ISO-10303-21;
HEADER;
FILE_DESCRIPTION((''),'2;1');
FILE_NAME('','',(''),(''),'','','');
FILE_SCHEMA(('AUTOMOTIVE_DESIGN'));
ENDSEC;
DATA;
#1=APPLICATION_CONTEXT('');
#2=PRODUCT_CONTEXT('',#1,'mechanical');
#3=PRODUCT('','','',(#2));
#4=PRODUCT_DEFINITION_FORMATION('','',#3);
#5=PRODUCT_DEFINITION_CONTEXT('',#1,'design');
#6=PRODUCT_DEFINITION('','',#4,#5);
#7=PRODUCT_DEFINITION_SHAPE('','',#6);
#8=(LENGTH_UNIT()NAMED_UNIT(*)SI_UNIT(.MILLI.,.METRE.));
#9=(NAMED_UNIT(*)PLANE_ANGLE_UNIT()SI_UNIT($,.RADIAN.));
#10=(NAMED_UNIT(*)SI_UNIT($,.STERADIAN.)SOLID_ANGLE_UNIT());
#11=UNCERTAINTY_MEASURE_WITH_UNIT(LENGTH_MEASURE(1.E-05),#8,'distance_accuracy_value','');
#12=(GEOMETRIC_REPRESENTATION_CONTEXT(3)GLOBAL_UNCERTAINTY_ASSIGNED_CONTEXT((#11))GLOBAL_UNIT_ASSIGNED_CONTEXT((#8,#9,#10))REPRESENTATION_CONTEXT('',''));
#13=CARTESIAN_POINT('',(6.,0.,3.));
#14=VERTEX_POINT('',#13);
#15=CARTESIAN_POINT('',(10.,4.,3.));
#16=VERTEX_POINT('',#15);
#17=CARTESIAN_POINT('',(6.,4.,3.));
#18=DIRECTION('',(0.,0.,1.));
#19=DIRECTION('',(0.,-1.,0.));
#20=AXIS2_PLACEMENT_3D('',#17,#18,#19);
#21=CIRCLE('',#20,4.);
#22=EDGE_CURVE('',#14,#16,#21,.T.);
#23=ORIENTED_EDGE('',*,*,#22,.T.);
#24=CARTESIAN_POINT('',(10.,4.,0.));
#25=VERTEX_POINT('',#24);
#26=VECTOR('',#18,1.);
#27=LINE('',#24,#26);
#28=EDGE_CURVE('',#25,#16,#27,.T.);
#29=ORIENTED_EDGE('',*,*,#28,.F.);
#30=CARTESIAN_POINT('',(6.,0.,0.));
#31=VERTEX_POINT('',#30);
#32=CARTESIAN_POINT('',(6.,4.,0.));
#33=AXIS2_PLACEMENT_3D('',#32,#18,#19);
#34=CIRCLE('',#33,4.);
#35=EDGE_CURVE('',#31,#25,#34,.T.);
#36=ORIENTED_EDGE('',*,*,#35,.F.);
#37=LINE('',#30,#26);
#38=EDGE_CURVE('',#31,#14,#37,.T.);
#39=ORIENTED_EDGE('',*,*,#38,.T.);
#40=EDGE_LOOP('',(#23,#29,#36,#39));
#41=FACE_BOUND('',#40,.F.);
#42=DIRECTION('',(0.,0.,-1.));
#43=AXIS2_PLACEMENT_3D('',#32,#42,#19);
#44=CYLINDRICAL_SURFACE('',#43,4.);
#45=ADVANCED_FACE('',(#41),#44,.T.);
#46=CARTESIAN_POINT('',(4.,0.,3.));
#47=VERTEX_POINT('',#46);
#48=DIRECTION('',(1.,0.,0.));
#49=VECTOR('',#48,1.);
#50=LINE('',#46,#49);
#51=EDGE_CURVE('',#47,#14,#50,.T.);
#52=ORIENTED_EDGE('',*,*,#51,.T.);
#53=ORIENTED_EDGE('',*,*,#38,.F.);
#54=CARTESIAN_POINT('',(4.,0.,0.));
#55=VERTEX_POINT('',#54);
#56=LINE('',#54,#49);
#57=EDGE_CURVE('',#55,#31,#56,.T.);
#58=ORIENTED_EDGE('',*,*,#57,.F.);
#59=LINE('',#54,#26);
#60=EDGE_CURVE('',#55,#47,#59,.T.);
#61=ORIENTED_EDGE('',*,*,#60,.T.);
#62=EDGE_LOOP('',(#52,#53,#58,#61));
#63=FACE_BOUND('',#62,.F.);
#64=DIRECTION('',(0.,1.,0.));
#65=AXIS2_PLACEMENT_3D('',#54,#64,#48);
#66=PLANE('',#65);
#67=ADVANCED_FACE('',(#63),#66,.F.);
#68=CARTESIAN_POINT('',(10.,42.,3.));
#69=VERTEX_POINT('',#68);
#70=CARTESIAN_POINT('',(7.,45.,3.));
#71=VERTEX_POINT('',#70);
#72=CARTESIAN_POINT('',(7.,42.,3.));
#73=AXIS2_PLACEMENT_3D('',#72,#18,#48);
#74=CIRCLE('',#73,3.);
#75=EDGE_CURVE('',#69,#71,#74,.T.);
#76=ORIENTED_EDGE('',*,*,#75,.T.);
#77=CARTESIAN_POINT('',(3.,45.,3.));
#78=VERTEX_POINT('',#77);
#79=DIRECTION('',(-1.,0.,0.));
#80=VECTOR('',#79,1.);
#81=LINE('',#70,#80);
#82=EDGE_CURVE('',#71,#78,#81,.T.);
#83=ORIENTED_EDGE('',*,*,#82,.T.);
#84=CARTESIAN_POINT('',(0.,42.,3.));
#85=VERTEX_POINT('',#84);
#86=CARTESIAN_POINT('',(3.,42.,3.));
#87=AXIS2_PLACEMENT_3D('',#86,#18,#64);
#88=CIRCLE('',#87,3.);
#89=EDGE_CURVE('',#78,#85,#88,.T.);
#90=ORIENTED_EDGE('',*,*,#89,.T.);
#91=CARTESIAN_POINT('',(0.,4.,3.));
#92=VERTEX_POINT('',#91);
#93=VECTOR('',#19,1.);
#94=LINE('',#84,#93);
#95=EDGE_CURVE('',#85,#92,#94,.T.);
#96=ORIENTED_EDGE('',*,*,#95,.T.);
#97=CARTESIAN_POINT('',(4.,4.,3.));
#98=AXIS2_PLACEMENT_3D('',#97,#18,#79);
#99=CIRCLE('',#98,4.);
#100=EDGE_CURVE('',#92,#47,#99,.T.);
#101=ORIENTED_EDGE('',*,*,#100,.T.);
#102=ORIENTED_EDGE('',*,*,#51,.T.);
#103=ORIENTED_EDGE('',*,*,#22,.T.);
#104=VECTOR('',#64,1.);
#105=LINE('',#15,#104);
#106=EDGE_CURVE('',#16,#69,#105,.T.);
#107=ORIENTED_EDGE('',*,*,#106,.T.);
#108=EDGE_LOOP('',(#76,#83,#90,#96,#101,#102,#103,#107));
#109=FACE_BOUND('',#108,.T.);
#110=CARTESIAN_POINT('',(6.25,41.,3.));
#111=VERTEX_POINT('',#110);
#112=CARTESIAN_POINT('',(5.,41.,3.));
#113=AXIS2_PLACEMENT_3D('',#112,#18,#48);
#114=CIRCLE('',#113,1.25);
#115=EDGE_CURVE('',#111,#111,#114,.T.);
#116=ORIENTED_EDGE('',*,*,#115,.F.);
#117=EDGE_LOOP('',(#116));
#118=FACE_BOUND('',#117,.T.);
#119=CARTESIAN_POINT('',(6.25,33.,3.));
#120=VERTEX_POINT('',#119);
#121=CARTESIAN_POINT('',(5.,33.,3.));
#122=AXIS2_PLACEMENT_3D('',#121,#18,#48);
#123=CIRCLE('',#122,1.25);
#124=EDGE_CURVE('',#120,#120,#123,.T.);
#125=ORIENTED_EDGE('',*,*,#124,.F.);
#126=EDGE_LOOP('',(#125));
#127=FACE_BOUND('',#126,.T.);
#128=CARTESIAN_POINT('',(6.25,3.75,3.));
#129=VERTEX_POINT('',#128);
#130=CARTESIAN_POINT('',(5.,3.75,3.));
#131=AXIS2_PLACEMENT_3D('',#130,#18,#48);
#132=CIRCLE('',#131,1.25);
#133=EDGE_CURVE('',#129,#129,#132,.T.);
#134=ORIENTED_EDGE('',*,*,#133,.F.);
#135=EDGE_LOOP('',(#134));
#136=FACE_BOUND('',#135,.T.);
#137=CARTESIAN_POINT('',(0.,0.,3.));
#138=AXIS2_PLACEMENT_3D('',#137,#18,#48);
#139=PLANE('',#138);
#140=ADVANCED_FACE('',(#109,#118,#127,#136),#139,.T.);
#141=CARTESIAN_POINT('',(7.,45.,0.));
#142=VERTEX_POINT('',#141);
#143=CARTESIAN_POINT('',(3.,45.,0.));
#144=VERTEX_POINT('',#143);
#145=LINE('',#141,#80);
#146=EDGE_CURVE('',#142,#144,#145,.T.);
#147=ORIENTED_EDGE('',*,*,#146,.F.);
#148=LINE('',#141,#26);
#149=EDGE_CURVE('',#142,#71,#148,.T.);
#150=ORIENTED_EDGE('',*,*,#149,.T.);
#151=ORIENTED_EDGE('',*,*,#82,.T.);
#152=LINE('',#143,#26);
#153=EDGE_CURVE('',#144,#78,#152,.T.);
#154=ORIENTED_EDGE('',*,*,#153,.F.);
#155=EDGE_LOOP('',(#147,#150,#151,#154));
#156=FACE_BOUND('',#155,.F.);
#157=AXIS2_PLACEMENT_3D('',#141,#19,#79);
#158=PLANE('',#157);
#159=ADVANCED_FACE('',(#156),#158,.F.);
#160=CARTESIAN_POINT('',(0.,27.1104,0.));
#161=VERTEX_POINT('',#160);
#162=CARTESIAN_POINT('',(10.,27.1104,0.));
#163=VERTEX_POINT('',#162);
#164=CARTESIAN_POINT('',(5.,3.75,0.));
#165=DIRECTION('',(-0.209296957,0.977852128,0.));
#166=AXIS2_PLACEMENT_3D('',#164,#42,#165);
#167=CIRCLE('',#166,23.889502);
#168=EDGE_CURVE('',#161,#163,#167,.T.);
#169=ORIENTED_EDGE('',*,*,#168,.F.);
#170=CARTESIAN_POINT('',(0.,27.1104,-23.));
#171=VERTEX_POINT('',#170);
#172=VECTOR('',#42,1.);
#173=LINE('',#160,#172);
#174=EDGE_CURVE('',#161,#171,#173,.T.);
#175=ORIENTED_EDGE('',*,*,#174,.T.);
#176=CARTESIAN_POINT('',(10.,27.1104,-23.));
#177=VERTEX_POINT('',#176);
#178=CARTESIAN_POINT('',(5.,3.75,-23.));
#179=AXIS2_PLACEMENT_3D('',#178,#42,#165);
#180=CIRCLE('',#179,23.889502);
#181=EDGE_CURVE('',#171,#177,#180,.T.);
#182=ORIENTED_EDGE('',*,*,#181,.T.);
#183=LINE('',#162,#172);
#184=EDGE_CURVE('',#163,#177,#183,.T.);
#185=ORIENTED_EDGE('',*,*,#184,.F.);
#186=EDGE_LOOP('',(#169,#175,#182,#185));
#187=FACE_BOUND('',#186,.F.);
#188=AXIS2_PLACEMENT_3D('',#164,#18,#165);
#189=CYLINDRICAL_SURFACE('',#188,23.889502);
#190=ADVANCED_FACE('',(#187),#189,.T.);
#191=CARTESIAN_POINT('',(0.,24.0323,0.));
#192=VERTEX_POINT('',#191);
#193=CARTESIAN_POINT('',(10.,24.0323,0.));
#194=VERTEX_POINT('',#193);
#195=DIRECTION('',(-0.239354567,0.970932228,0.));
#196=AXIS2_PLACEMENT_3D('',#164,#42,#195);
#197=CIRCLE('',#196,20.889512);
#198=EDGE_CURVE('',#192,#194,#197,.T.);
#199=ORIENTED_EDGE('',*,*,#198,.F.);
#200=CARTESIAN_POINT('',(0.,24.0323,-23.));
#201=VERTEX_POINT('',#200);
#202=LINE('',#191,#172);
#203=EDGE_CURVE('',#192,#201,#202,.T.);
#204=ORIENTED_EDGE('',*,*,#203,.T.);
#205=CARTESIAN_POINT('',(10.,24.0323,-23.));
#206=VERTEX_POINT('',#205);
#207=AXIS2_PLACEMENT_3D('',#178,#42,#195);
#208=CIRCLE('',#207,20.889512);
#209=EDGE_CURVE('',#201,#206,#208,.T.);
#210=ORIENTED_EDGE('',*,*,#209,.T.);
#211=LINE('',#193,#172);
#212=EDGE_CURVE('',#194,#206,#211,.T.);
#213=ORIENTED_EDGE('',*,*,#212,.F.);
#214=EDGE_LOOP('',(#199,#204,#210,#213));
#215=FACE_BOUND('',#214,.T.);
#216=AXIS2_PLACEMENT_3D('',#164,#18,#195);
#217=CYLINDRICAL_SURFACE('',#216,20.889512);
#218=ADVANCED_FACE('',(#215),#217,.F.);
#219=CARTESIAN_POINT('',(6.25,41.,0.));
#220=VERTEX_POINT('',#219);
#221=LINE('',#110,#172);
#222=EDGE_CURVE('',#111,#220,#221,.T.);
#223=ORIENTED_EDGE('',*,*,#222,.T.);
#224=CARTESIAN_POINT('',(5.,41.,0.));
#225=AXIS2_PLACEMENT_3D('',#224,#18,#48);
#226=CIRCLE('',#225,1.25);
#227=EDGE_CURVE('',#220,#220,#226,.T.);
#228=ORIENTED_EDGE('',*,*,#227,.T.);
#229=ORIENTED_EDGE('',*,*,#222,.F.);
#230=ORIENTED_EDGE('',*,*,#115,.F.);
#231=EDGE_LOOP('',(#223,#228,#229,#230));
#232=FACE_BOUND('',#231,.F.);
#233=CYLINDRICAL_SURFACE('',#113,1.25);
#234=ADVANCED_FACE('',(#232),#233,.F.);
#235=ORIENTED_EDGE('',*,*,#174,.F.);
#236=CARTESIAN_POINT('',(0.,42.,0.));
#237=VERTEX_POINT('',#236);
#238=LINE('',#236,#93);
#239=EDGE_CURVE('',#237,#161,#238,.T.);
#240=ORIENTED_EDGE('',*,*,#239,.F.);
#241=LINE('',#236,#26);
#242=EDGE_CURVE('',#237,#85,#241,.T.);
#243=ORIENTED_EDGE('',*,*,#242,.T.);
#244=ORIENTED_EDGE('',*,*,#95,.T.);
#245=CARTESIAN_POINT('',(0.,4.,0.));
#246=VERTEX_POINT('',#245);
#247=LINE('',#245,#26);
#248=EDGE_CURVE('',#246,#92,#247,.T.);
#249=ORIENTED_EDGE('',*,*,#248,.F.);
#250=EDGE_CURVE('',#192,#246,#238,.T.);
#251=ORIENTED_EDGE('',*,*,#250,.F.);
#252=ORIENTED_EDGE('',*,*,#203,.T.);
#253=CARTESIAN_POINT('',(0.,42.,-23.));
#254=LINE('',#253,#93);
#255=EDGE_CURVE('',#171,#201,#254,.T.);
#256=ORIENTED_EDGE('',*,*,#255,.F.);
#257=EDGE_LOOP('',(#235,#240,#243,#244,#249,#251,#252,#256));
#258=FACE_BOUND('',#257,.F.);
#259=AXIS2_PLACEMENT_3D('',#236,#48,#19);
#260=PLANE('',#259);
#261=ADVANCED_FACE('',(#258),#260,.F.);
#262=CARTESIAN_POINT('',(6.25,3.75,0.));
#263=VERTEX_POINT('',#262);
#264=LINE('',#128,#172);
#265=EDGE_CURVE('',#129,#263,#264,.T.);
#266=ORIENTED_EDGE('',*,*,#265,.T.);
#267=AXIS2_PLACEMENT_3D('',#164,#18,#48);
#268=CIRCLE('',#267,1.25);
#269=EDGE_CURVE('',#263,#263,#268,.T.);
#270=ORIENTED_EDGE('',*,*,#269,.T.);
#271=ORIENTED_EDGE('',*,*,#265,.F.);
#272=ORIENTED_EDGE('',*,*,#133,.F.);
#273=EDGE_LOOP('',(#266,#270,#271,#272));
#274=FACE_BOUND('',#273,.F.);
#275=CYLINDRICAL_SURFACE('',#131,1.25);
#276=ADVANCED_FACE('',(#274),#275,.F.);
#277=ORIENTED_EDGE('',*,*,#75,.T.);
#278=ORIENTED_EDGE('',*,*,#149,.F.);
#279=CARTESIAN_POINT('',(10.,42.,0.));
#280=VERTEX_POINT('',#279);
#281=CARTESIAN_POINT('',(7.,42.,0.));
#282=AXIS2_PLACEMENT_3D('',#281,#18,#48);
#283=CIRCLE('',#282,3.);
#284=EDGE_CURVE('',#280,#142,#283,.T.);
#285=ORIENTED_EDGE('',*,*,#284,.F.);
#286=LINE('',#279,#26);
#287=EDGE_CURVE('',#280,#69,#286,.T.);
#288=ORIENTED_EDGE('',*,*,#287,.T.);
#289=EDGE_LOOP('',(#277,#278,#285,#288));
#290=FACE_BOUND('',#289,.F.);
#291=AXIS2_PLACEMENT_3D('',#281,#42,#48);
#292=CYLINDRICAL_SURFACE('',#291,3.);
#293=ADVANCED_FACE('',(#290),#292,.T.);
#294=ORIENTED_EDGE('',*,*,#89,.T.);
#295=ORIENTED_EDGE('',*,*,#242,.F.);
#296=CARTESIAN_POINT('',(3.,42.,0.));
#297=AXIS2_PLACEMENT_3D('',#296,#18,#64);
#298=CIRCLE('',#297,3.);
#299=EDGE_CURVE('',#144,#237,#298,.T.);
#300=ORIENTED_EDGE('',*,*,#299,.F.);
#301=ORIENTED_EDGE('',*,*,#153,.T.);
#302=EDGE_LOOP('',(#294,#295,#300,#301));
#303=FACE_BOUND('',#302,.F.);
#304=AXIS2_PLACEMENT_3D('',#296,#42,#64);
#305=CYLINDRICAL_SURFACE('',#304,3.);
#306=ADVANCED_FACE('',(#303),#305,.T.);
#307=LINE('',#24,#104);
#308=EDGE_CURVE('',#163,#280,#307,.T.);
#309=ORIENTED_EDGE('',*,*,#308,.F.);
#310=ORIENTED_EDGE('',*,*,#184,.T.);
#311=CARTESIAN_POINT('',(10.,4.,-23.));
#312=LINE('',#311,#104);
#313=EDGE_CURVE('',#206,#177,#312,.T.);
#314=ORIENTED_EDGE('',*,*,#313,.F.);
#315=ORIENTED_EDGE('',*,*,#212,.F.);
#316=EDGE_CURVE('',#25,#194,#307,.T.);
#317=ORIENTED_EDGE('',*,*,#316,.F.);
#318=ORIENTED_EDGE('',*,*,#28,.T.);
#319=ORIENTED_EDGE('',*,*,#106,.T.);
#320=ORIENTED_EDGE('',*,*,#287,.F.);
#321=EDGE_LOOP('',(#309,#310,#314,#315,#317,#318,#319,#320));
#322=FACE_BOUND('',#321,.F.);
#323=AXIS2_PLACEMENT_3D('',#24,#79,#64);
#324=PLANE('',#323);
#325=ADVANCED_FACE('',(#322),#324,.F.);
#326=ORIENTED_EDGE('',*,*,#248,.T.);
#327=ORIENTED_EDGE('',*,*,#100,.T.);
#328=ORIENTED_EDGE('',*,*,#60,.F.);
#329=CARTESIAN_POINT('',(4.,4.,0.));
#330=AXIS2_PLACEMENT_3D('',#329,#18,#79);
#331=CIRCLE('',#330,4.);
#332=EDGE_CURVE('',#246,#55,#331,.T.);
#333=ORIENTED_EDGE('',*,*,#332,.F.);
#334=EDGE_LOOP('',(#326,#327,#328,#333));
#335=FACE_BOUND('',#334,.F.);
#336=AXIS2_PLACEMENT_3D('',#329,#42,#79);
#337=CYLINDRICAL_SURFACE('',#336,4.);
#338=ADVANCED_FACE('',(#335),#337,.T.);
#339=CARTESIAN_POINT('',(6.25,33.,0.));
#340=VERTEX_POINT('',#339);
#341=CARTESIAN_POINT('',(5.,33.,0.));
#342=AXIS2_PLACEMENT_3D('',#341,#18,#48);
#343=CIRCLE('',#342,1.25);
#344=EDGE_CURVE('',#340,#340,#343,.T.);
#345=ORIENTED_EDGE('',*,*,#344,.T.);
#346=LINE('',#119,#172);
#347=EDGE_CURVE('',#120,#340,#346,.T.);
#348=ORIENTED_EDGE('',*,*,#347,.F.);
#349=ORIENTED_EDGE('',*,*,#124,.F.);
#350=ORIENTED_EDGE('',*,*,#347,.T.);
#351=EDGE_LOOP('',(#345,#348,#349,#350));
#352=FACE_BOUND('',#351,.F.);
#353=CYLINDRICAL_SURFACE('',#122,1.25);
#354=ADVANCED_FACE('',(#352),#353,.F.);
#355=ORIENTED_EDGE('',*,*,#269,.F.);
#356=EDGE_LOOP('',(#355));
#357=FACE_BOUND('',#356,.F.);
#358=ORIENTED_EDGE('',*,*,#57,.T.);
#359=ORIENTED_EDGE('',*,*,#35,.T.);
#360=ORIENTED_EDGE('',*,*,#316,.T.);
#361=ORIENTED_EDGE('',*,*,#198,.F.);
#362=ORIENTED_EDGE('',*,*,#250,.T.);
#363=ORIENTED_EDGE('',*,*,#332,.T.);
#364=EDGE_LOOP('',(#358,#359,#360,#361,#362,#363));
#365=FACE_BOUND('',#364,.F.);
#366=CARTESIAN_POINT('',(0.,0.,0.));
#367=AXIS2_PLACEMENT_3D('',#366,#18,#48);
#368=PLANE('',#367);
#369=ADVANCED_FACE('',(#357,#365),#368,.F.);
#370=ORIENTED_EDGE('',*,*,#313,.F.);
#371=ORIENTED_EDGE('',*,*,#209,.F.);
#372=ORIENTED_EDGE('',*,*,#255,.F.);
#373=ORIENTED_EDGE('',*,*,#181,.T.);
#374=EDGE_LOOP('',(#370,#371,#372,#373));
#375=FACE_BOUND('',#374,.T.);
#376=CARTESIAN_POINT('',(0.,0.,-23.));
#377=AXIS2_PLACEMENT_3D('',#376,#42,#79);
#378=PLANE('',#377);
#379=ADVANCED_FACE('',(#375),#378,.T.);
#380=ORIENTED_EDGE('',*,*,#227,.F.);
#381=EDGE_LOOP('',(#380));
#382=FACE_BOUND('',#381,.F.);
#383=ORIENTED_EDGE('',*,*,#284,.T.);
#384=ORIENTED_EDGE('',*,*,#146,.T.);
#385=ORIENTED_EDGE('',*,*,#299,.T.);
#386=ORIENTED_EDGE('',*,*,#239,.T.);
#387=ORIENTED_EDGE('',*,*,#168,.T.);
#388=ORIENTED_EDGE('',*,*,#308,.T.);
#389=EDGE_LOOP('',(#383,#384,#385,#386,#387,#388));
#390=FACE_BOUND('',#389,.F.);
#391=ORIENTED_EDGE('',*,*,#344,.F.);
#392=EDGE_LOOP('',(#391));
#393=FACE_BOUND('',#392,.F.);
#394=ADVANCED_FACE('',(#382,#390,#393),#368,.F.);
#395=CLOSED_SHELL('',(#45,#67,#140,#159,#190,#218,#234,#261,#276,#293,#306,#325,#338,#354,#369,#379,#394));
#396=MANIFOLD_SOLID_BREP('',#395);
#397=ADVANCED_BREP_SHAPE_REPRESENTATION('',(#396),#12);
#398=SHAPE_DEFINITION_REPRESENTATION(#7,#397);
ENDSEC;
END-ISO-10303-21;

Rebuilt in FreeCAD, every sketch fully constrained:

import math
import FreeCAD as App
import Part
import Sketcher
from FreeCAD import Vector
Q = App.Units.Quantity

doc = App.newDocument("Part")
body = doc.addObject("PartDesign::Body", "Body")

sketch1 = body.newObject("Sketcher::SketchObject", "Sketch")
sketch1.AttachmentSupport = (doc.getObject("XY_Plane"), [""])
sketch1.MapMode = "FlatFace"
sketch1.addGeometry(Part.ArcOfCircle(Part.Circle(Vector(4, 4, 0), Vector(0, 0, 1), 4), math.radians(180), math.radians(270)), False)
sketch1.addGeometry(Part.LineSegment(Vector(4, 0, 0), Vector(6, 0, 0)), False)
sketch1.addGeometry(Part.ArcOfCircle(Part.Circle(Vector(6, 4, 0), Vector(0, 0, 1), 4), math.radians(-90), math.radians(0)), False)
sketch1.addGeometry(Part.LineSegment(Vector(10, 4, 0), Vector(10, 42, 0)), False)
sketch1.addGeometry(Part.ArcOfCircle(Part.Circle(Vector(7, 42, 0), Vector(0, 0, 1), 3), math.radians(0), math.radians(90)), False)
sketch1.addGeometry(Part.LineSegment(Vector(7, 45, 0), Vector(3, 45, 0)), False)
sketch1.addGeometry(Part.ArcOfCircle(Part.Circle(Vector(3, 42, 0), Vector(0, 0, 1), 3), math.radians(90), math.radians(180)), False)
sketch1.addGeometry(Part.LineSegment(Vector(0, 42, 0), Vector(0, 4, 0)), False)
sketch1.addConstraint(Sketcher.Constraint("Tangent", 0, 2, 1, 1))
sketch1.addConstraint(Sketcher.Constraint("Tangent", 1, 2, 2, 1))
sketch1.addConstraint(Sketcher.Constraint("Tangent", 2, 2, 3, 1))
sketch1.addConstraint(Sketcher.Constraint("Tangent", 3, 2, 4, 1))
sketch1.addConstraint(Sketcher.Constraint("Tangent", 4, 2, 5, 1))
sketch1.addConstraint(Sketcher.Constraint("Tangent", 5, 2, 6, 1))
sketch1.addConstraint(Sketcher.Constraint("Tangent", 6, 2, 7, 1))
sketch1.addConstraint(Sketcher.Constraint("Tangent", 7, 2, 0, 1))
sketch1.addConstraint(Sketcher.Constraint("Horizontal", 1))
sketch1.addConstraint(Sketcher.Constraint("Vertical", 3))
sketch1.addConstraint(Sketcher.Constraint("Horizontal", 5))
sketch1.addConstraint(Sketcher.Constraint("Vertical", 7))
sketch1.addConstraint(Sketcher.Constraint("Equal", 0, 2))
sketch1.addConstraint(Sketcher.Constraint("Equal", 4, 6))
sketch1.addConstraint(Sketcher.Constraint("PointOnObject", 0, 2, -1))
sketch1.addConstraint(Sketcher.Constraint("PointOnObject", 6, 2, -2))
sketch1.addConstraint(Sketcher.Constraint("Radius", 0, Q("4 mm")))
sketch1.addConstraint(Sketcher.Constraint("Radius", 4, Q("3 mm")))
sketch1.addConstraint(Sketcher.Constraint("DistanceX", 5, 2, 5, 1, Q("4 mm")))
sketch1.addConstraint(Sketcher.Constraint("DistanceY", -1, 1, 4, 2, Q("45 mm")))
pad1 = body.newObject("PartDesign::Pad", "Pad")
pad1.Profile = sketch1
pad1.Length = 3

sketch2 = body.newObject("Sketcher::SketchObject", "Sketch001")
sketch2.AttachmentSupport = (doc.getObject("XY_Plane"), [""])
sketch2.MapMode = "FlatFace"
sketch2.AttachmentOffset = App.Placement(Vector(0, 0, 3), App.Rotation())
sketch2.addGeometry(Part.Circle(Vector(5, 3.75, 0), Vector(0, 0, 1), 1.25), False)
sketch2.addGeometry(Part.Circle(Vector(5, 33, 0), Vector(0, 0, 1), 1.25), False)
sketch2.addGeometry(Part.Circle(Vector(5, 41, 0), Vector(0, 0, 1), 1.25), False)
sketch2.addConstraint(Sketcher.Constraint("Equal", 0, 1))
sketch2.addConstraint(Sketcher.Constraint("Equal", 1, 2))
sketch2.addConstraint(Sketcher.Constraint("Vertical", 0, 3, 1, 3))
sketch2.addConstraint(Sketcher.Constraint("Vertical", 1, 3, 2, 3))
sketch2.addConstraint(Sketcher.Constraint("Diameter", 0, Q("2.5 mm")))
sketch2.addConstraint(Sketcher.Constraint("DistanceX", -1, 1, 0, 3, Q("5 mm")))
sketch2.addConstraint(Sketcher.Constraint("DistanceY", 1, 3, 2, 3, Q("8 mm")))
sketch2.addConstraint(Sketcher.Constraint("DistanceY", -1, 1, 0, 3, Q("3.75 mm")))
sketch2.addConstraint(Sketcher.Constraint("DistanceY", -1, 1, 1, 3, Q("33 mm")))
pocket1 = body.newObject("PartDesign::Pocket", "Pocket")
pocket1.Profile = sketch2
pocket1.Type = "ThroughAll"

sketch3 = body.newObject("Sketcher::SketchObject", "Sketch002")
sketch3.AttachmentSupport = (doc.getObject("XY_Plane"), [""])
sketch3.MapMode = "FlatFace"
sketch3.addGeometry(Part.LineSegment(Vector(10, 27.1104, 0), Vector(10, 24.0323, 0)), False)
sketch3.addGeometry(Part.ArcOfCircle(Part.Circle(Vector(5, 3.75, 0), Vector(0, 0, 1), 20.889512), math.radians(76.15155), math.radians(103.84845)), False)
sketch3.addGeometry(Part.LineSegment(Vector(0, 24.0323, 0), Vector(0, 27.1104, 0)), False)
sketch3.addGeometry(Part.ArcOfCircle(Part.Circle(Vector(5, 3.75, 0), Vector(0, 0, 1), 23.889502), math.radians(77.918845), math.radians(102.081155)), False)
sketch3.addConstraint(Sketcher.Constraint("Coincident", 0, 2, 1, 1))
sketch3.addConstraint(Sketcher.Constraint("Coincident", 1, 2, 2, 1))
sketch3.addConstraint(Sketcher.Constraint("Coincident", 2, 2, 3, 2))
sketch3.addConstraint(Sketcher.Constraint("Coincident", 3, 1, 0, 1))
sketch3.addConstraint(Sketcher.Constraint("Vertical", 0))
sketch3.addConstraint(Sketcher.Constraint("Vertical", 2))
sketch3.addConstraint(Sketcher.Constraint("Coincident", 3, 3, 1, 3))
sketch3.addConstraint(Sketcher.Constraint("PointOnObject", 1, 2, -2))
sketch3.addConstraint(Sketcher.Constraint("Horizontal", 0, 2, 1, 2))
sketch3.addConstraint(Sketcher.Constraint("Radius", 1, Q("20.8895 mm")))
sketch3.addConstraint(Sketcher.Constraint("DistanceX", -1, 1, 1, 3, Q("5 mm")))
sketch3.addConstraint(Sketcher.Constraint("Radius", 3, Q("23.8895 mm")))
sketch3.addConstraint(Sketcher.Constraint("DistanceY", -1, 1, 1, 3, Q("3.75 mm")))
pad2 = body.newObject("PartDesign::Pad", "Pad001")
pad2.Profile = sketch3
pad2.Length = 23
pad2.Reversed = True

doc.recompute()
